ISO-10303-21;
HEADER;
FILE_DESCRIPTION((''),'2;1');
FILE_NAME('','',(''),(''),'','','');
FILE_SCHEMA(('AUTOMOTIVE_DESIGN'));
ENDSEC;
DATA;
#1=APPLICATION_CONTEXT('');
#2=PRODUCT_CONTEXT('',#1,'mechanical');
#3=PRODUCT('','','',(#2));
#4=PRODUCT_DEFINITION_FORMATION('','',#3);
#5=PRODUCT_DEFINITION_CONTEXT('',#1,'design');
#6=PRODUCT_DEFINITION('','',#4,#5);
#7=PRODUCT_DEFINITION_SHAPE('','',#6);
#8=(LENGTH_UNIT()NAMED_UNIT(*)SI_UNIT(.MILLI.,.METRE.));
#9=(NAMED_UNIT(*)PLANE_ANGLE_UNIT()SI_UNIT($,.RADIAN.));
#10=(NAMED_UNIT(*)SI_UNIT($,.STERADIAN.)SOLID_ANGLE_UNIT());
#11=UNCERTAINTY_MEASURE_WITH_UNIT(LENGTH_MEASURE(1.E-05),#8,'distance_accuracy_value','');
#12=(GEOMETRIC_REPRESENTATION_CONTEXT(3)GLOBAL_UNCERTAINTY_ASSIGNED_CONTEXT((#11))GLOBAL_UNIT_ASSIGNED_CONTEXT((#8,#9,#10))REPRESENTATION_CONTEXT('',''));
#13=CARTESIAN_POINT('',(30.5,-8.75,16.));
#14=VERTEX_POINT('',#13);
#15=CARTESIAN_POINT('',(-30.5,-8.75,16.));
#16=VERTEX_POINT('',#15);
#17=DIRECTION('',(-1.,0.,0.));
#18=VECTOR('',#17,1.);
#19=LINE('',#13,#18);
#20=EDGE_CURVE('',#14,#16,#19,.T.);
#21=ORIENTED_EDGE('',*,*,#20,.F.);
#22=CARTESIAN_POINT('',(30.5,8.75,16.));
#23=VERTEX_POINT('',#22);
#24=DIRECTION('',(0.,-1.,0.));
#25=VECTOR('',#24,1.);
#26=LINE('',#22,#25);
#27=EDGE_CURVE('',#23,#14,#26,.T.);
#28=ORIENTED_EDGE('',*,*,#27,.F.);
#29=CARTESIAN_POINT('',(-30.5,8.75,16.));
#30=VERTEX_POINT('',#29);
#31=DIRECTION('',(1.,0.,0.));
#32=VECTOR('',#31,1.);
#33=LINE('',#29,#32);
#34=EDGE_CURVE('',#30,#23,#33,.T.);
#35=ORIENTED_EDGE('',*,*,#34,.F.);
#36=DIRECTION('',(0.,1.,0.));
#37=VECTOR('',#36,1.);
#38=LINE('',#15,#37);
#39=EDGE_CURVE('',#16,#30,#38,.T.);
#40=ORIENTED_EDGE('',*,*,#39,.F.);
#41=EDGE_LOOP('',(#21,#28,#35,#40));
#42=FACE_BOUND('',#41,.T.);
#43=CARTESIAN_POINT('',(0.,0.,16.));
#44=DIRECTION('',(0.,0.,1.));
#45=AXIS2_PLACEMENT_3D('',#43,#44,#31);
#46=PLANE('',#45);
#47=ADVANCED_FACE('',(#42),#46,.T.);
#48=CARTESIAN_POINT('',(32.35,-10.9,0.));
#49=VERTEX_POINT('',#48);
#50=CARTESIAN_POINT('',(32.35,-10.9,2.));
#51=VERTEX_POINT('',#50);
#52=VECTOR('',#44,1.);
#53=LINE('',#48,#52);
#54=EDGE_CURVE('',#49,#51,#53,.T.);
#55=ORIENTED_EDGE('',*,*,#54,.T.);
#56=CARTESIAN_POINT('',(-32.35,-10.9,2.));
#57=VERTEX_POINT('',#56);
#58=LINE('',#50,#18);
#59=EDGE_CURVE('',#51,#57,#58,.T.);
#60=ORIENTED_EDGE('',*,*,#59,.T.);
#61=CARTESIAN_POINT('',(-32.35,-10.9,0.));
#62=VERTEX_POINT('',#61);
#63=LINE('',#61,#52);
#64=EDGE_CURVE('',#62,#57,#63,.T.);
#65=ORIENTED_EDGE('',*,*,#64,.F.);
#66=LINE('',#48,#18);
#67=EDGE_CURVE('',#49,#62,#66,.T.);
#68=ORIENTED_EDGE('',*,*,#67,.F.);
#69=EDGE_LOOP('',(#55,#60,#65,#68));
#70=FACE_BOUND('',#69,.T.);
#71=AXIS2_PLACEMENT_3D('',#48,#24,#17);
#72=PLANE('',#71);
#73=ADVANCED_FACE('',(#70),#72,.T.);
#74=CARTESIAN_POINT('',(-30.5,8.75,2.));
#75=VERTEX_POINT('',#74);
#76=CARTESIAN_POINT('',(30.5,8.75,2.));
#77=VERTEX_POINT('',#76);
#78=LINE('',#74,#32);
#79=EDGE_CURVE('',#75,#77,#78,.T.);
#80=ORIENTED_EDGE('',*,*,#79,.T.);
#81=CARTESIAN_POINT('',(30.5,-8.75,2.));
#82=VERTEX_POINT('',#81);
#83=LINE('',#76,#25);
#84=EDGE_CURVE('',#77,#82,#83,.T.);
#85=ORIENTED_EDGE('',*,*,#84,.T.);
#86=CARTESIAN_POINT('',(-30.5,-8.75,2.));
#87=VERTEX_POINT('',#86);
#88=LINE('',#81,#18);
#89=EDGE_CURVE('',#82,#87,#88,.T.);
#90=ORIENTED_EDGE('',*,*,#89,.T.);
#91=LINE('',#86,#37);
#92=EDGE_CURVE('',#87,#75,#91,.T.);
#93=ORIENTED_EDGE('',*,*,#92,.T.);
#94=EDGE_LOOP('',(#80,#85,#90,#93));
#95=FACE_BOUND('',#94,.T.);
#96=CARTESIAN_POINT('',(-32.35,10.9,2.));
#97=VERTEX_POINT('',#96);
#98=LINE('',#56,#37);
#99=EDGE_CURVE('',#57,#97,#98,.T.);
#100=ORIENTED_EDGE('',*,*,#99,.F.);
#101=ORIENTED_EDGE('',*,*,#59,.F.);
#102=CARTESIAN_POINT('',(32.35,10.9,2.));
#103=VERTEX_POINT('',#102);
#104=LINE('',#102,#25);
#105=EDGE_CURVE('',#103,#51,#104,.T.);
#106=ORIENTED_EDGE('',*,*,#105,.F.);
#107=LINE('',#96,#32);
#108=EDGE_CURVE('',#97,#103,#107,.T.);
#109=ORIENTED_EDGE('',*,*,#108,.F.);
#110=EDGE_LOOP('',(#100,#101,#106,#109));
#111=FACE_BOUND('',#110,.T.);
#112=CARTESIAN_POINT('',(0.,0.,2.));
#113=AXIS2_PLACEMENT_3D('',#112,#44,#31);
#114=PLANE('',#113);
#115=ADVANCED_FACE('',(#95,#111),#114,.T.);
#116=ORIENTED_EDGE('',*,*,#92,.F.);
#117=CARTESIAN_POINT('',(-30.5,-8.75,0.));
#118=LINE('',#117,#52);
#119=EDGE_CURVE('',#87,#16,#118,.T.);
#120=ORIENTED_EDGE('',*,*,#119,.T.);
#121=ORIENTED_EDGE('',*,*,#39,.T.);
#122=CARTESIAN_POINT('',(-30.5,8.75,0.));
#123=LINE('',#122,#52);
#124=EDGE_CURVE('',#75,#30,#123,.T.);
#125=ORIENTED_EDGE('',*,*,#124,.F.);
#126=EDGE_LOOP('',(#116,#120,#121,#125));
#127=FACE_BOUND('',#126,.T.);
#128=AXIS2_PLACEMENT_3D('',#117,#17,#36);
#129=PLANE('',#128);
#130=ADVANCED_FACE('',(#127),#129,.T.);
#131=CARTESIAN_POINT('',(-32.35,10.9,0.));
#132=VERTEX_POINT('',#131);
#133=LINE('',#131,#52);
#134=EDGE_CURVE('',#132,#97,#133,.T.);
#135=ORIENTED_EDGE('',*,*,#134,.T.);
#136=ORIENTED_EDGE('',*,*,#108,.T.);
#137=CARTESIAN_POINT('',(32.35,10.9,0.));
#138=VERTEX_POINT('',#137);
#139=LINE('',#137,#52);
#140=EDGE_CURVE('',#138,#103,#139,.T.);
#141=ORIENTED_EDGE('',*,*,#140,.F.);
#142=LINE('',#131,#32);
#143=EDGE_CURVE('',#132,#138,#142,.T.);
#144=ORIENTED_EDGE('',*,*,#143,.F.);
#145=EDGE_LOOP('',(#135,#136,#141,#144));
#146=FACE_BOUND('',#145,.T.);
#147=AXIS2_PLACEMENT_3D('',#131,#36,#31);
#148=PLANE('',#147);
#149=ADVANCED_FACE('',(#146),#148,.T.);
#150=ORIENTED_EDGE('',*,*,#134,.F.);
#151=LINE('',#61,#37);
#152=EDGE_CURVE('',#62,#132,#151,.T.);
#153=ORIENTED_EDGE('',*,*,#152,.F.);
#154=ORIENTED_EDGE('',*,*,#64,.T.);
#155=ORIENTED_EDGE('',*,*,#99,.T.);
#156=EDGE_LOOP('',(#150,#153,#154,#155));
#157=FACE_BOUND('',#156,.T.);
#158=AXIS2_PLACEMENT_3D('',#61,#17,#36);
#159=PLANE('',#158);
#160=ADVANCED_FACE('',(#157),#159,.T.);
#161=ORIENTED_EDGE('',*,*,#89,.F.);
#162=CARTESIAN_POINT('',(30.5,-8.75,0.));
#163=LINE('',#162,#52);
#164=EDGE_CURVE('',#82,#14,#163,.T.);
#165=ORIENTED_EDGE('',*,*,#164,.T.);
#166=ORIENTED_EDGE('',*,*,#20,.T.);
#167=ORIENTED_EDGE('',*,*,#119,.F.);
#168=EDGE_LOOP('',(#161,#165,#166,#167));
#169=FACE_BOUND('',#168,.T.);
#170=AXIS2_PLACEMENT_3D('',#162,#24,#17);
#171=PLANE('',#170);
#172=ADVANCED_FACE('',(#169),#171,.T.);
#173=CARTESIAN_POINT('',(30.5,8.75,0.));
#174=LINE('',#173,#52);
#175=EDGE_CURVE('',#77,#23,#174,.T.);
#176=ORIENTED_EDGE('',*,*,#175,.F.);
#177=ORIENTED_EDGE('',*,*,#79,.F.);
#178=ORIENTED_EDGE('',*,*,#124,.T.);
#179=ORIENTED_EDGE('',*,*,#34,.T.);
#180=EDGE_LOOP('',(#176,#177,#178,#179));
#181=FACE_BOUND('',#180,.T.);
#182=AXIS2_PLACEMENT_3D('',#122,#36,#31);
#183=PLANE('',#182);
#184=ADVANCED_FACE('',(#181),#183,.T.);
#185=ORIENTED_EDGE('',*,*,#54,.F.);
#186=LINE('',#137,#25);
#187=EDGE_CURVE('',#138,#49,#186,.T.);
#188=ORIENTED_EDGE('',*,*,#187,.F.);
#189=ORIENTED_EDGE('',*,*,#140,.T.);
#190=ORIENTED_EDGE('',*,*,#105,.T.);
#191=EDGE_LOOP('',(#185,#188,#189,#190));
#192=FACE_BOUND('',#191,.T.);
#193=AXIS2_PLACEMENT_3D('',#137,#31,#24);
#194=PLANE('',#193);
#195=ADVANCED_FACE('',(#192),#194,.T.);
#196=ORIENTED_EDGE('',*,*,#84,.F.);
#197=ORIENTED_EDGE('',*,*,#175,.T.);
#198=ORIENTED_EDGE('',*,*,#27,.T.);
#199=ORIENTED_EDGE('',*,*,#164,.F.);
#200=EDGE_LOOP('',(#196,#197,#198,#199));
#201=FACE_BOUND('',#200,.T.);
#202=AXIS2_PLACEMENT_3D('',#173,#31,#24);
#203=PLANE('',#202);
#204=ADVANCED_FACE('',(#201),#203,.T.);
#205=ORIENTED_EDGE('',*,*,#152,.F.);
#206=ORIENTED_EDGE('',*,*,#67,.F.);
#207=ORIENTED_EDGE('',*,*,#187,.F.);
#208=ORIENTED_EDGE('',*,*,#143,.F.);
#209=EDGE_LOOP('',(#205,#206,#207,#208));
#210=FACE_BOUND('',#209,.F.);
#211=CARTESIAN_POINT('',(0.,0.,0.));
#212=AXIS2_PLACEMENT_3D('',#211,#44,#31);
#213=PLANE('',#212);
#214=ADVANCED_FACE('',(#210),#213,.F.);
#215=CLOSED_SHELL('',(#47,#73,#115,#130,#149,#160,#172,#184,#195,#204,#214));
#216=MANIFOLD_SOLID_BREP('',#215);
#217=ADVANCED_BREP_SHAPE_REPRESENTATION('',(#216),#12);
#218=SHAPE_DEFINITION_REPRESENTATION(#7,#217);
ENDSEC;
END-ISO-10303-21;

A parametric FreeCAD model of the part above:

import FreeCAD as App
import Part
import Sketcher

V = App.Vector
Q = App.Units.Quantity

doc = App.newDocument("Part")
body = doc.addObject("PartDesign::Body", "Body")

sketch1 = body.newObject("Sketcher::SketchObject", "Sketch")
sketch1.AttachmentSupport = (doc.getObject("XY_Plane"), [""])
sketch1.MapMode = "FlatFace"
sketch1.addGeometry([
    Part.LineSegment(V(30.5, 8.75, 0), V(-30.5, 8.75, 0)),
    Part.LineSegment(V(-30.5, 8.75, 0), V(-30.5, -8.75, 0)),
    Part.LineSegment(V(-30.5, -8.75, 0), V(30.5, -8.75, 0)),
    Part.LineSegment(V(30.5, -8.75, 0), V(30.5, 8.75, 0)),
], False)
sketch1.addConstraint([
    Sketcher.Constraint("Coincident", 0, 2, 1, 1),
    Sketcher.Constraint("Coincident", 1, 2, 2, 1),
    Sketcher.Constraint("Coincident", 2, 2, 3, 1),
    Sketcher.Constraint("Coincident", 3, 2, 0, 1),
    Sketcher.Constraint("Horizontal", 0),
    Sketcher.Constraint("Vertical", 1),
    Sketcher.Constraint("Horizontal", 2),
    Sketcher.Constraint("Vertical", 3),
    Sketcher.Constraint("Symmetric", 0, 2, 2, 2, -1, 1),
    Sketcher.Constraint("DistanceX", 0, 2, 0, 1, Q("61 mm")),
    Sketcher.Constraint("DistanceY", 1, 2, 1, 1, Q("17.5 mm")),
])
pad1 = body.newObject("PartDesign::Pad", "Pad")
pad1.Profile = sketch1
pad1.Length = 16

sketch2 = body.newObject("Sketcher::SketchObject", "Sketch001")
sketch2.AttachmentSupport = (doc.getObject("XY_Plane"), [""])
sketch2.MapMode = "FlatFace"
sketch2.addGeometry([
    Part.LineSegment(V(32.35, 10.9, 0), V(-32.35, 10.9, 0)),
    Part.LineSegment(V(-32.35, 10.9, 0), V(-32.35, -10.9, 0)),
    Part.LineSegment(V(-32.35, -10.9, 0), V(32.35, -10.9, 0)),
    Part.LineSegment(V(32.35, -10.9, 0), V(32.35, 10.9, 0)),
    Part.LineSegment(V(-30.5, -8.75, 0), V(-30.5, 8.75, 0)),
    Part.LineSegment(V(-30.5, 8.75, 0), V(30.5, 8.75, 0)),
    Part.LineSegment(V(30.5, 8.75, 0), V(30.5, -8.75, 0)),
    Part.LineSegment(V(30.5, -8.75, 0), V(-30.5, -8.75, 0)),
], False)
sketch2.addConstraint([
    Sketcher.Constraint("Coincident", 0, 2, 1, 1),
    Sketcher.Constraint("Coincident", 1, 2, 2, 1),
    Sketcher.Constraint("Coincident", 2, 2, 3, 1),
    Sketcher.Constraint("Coincident", 3, 2, 0, 1),
    Sketcher.Constraint("Coincident", 4, 2, 5, 1),
    Sketcher.Constraint("Coincident", 5, 2, 6, 1),
    Sketcher.Constraint("Coincident", 6, 2, 7, 1),
    Sketcher.Constraint("Coincident", 7, 2, 4, 1),
    Sketcher.Constraint("Horizontal", 0),
    Sketcher.Constraint("Vertical", 1),
    Sketcher.Constraint("Horizontal", 2),
    Sketcher.Constraint("Vertical", 3),
    Sketcher.Constraint("Vertical", 4),
    Sketcher.Constraint("Horizontal", 5),
    Sketcher.Constraint("Vertical", 6),
    Sketcher.Constraint("Horizontal", 7),
    Sketcher.Constraint("Symmetric", 0, 2, 2, 2, -1, 1),
    Sketcher.Constraint("Symmetric", 4, 2, 6, 2, -1, 1),
    Sketcher.Constraint("DistanceX", 5, 1, 5, 2, Q("61 mm")),
    Sketcher.Constraint("DistanceX", 0, 2, 0, 1, Q("64.7 mm")),
    Sketcher.Constraint("DistanceY", 1, 2, 1, 1, Q("21.8 mm")),
    Sketcher.Constraint("DistanceY", 4, 1, 4, 2, Q("17.5 mm")),
])
pad2 = body.newObject("PartDesign::Pad", "Pad001")
pad2.Profile = sketch2
pad2.Length = 2

doc.recompute()
